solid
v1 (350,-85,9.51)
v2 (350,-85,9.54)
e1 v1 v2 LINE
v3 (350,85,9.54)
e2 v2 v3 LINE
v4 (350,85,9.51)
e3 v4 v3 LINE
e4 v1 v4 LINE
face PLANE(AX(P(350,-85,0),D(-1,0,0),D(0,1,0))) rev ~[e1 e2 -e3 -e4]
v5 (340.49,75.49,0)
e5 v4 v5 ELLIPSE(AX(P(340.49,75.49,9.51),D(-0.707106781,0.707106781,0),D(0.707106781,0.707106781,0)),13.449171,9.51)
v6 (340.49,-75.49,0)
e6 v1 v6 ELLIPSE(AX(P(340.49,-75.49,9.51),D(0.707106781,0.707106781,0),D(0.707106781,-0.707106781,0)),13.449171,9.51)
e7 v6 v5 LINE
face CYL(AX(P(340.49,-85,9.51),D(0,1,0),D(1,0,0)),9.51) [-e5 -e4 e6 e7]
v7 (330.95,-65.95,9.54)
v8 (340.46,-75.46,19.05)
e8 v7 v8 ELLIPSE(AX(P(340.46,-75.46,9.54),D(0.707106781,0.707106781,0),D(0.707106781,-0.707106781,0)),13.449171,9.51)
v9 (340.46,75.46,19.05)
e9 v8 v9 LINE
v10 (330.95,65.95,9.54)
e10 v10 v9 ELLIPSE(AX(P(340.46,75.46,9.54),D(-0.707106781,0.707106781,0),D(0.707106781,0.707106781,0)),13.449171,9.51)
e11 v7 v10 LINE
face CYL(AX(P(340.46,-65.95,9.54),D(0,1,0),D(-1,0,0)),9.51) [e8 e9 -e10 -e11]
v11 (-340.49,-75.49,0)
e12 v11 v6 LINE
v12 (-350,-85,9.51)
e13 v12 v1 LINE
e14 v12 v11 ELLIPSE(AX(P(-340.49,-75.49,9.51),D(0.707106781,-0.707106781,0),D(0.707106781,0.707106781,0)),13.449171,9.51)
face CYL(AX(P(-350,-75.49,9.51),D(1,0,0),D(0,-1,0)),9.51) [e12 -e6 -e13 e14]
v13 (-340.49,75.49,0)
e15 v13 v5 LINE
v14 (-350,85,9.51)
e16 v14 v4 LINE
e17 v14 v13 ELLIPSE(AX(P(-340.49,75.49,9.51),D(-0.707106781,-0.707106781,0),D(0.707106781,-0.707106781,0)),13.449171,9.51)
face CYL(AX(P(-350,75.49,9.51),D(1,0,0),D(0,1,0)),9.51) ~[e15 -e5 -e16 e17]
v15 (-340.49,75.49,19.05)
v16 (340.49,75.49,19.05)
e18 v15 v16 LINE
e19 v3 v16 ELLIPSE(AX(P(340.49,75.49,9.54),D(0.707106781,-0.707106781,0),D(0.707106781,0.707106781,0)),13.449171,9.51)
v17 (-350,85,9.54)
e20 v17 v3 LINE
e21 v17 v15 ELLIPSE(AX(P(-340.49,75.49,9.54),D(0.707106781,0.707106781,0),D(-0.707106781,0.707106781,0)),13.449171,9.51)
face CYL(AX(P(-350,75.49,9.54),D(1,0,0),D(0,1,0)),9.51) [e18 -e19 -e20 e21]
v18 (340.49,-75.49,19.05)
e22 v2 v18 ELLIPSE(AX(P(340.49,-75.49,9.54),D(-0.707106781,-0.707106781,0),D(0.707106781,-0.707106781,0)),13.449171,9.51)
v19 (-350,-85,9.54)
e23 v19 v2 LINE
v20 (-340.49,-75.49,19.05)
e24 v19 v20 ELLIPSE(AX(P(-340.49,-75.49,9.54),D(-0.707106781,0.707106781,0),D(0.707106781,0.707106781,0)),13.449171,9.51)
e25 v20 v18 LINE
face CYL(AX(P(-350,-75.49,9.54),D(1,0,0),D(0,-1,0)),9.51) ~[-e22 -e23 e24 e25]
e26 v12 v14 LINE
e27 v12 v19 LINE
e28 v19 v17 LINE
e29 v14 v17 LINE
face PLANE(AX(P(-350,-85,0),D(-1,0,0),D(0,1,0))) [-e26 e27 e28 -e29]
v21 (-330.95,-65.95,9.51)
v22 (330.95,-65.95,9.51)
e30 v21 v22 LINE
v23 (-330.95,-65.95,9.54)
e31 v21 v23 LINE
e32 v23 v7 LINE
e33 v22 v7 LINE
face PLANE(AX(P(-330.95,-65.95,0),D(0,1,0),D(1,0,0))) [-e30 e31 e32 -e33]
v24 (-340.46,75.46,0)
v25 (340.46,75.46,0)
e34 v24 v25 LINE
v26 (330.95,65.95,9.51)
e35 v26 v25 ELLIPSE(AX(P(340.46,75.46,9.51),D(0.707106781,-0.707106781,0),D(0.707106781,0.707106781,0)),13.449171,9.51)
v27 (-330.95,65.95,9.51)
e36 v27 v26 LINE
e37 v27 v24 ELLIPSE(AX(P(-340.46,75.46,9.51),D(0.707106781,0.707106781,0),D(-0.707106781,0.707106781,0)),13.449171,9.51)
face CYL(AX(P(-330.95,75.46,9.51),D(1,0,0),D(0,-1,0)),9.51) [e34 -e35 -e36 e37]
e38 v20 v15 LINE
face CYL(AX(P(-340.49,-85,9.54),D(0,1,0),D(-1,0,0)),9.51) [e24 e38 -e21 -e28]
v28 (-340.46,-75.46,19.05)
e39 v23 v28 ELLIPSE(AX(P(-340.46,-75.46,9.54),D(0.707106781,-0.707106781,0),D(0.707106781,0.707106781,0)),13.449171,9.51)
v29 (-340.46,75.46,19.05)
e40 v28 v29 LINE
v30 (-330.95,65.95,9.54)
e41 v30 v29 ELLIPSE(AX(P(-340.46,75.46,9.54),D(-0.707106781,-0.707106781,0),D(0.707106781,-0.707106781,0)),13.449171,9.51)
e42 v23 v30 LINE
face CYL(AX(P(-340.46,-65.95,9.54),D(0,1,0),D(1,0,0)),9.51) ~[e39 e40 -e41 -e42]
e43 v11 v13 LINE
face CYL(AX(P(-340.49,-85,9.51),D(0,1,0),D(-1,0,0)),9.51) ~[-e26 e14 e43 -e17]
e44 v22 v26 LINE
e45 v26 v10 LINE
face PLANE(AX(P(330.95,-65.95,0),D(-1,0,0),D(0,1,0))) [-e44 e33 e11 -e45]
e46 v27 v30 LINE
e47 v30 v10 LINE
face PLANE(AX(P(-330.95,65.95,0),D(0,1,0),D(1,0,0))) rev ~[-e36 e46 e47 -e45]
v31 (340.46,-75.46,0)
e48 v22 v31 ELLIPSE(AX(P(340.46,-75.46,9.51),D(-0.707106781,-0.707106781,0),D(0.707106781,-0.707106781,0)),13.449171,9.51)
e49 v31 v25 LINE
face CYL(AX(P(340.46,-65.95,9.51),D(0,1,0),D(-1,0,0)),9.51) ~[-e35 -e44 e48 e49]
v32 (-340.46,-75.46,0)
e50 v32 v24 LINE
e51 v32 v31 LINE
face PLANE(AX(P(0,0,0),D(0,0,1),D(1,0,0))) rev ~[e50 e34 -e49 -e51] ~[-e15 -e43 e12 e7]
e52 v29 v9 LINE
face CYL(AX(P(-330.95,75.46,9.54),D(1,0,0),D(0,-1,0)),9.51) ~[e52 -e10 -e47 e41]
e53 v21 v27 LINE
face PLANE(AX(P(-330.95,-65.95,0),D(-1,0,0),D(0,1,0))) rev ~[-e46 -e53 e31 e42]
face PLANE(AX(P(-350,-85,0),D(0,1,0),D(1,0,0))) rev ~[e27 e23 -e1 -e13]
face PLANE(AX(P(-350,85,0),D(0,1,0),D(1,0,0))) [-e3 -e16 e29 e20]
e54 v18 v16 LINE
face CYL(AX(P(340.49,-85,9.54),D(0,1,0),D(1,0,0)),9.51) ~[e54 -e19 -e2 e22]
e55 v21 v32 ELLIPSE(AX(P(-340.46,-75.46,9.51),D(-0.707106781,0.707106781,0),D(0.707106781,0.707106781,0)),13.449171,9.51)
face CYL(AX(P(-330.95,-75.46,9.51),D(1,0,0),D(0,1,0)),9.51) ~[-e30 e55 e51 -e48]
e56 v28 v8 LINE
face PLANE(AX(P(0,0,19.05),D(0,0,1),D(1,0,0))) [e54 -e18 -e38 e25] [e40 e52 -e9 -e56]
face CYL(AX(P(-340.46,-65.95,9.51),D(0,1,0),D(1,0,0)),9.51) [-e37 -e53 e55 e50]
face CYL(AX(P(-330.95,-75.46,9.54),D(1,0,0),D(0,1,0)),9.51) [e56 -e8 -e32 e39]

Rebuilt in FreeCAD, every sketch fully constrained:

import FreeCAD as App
import Part
import Sketcher
Q = App.Units.Quantity


def edges_at(feature, points):
    """Names of the edges that pass closest to the given points."""
    edges = feature.Shape.Edges
    near = lambda p: min(range(len(edges)), key=lambda i: edges[i].distToShape(Part.Vertex(*p))[0])
    return sorted({f"Edge{near(p) + 1}" for p in points})


def add_polygon(sketch, points):
    """Adds a closed chain of lines whose ends are joined by coincident constraints."""
    first, n = sketch.GeometryCount, len(points)
    for a, b in zip(points, points[1:] + points[:1]):
        sketch.addGeometry(Part.LineSegment(App.Vector(*a, 0), App.Vector(*b, 0)), False)
    for i in range(n):
        sketch.addConstraint(Sketcher.Constraint("Coincident", first + i, 2, first + (i + 1) % n, 1))

doc = App.newDocument("Part")
body = doc.addObject("PartDesign::Body", "Body")

# Sketch on XY plane
sketch1 = doc.addObject("Sketcher::SketchObject", "Sketch")
body.addObject(sketch1)
sketch1.AttachmentSupport = (doc.XY_Plane, [""])
sketch1.MapMode = "FlatFace"
add_polygon(sketch1, [(-350, 85), (-350, -85), (350, -85), (350, 85)])  # lines 0-3
add_polygon(sketch1, [(331, -66), (-331, -66), (-331, 66), (331, 66)])  # lines 4-7
sketch1.addConstraint(Sketcher.Constraint("Vertical", 0))
sketch1.addConstraint(Sketcher.Constraint("Horizontal", 1))
sketch1.addConstraint(Sketcher.Constraint("Vertical", 2))
sketch1.addConstraint(Sketcher.Constraint("Horizontal", 3))
sketch1.addConstraint(Sketcher.Constraint("Horizontal", 4))
sketch1.addConstraint(Sketcher.Constraint("Vertical", 5))
sketch1.addConstraint(Sketcher.Constraint("Horizontal", 6))
sketch1.addConstraint(Sketcher.Constraint("Vertical", 7))
sketch1.addConstraint(Sketcher.Constraint("Symmetric", 0, 2, 2, 2, -1, 1))
sketch1.addConstraint(Sketcher.Constraint("Symmetric", 4, 2, 6, 2, -1, 1))
sketch1.addConstraint(Sketcher.Constraint("DistanceX", 1, 1, 1, 2, Q("700 mm")))
sketch1.addConstraint(Sketcher.Constraint("DistanceY", 0, 2, 0, 1, Q("170 mm")))
sketch1.addConstraint(Sketcher.Constraint("DistanceX", 4, 2, 4, 1, Q("661.9 mm")))
sketch1.addConstraint(Sketcher.Constraint("DistanceY", 5, 1, 5, 2, Q("131.9 mm")))
pad1 = doc.addObject("PartDesign::Pad", "Pad")
body.addObject(pad1)
pad1.Profile = sketch1
pad1.Length = 19.05
doc.recompute()

fillet = doc.addObject("PartDesign::Fillet", "Fillet")
body.addObject(fillet)
fillet.Base = (pad1, edges_at(pad1, [
    (0, -85, 0),
    (350, 0, 0),
    (0, 85, 0),
    (-350, 0, 0),
    (-330.95, 0, 0),
    (0, 65.95, 0),
    (0, -65.95, 0),
    (330.95, 0, 0),
    (0, -85, 19.05),
    (350, 0, 19.05),
    (0, 65.95, 19.05),
    (-330.95, 0, 19.05),
    (-350, 0, 19.05),
    (0, 85, 19.05),
    (0, -65.95, 19.05),
    (330.95, 0, 19.05),
]))
fillet.Radius = 9.51

doc.recompute()
